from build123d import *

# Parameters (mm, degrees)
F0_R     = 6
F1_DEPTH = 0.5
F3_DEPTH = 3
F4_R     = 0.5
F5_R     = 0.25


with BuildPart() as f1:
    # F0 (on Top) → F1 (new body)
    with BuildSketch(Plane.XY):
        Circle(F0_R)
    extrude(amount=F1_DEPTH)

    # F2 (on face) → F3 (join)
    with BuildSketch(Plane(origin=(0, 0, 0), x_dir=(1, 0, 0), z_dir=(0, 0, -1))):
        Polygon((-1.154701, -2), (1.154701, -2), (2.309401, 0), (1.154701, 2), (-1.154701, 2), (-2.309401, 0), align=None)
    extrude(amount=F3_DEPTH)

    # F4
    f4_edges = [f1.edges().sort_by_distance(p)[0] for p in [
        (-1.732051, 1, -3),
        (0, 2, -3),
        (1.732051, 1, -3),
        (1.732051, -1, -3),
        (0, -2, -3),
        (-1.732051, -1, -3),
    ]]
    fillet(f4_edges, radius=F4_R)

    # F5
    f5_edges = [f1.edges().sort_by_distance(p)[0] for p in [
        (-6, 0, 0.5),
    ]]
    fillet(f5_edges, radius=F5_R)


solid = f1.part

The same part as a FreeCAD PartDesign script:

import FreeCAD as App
import Part
import Sketcher
from FreeCAD import Vector
Q = App.Units.Quantity


def edges_at(feature, points):
    """Names of the edges that pass closest to the given points."""
    edges = feature.Shape.Edges
    near = lambda p: min(range(len(edges)), key=lambda i: edges[i].distToShape(Part.Vertex(*p))[0])
    return sorted({f"Edge{near(p) + 1}" for p in points})


def add_polygon(sketch, points):
    """Adds a closed chain of lines whose ends are joined by coincident constraints."""
    first, n = sketch.GeometryCount, len(points)
    for a, b in zip(points, points[1:] + points[:1]):
        sketch.addGeometry(Part.LineSegment(App.Vector(*a, 0), App.Vector(*b, 0)), False)
    for i in range(n):
        sketch.addConstraint(Sketcher.Constraint("Coincident", first + i, 2, first + (i + 1) % n, 1))

doc = App.newDocument("Part")
body = doc.addObject("PartDesign::Body", "Body")

# Sketch on XY plane
sketch1 = body.newObject("Sketcher::SketchObject", "Sketch")
sketch1.AttachmentSupport = (doc.getObject("XY_Plane"), [""])
sketch1.MapMode = "FlatFace"
sketch1.addGeometry(Part.Circle(Vector(0, 0, 0), Vector(0, 0, 1), 6), False)
sketch1.addConstraint(Sketcher.Constraint("Coincident", 0, 3, -1, 1))
sketch1.addConstraint(Sketcher.Constraint("Diameter", 0, 12.0))
pad1 = body.newObject("PartDesign::Pad", "Pad")
pad1.Profile = sketch1
pad1.Length = 0.5

# Sketch on XY plane
sketch2 = body.newObject("Sketcher::SketchObject", "Sketch001")
sketch2.AttachmentSupport = (doc.getObject("XY_Plane"), [""])
sketch2.MapMode = "FlatFace"
add_polygon(sketch2, [(-1.154701, 2), (1.154701, 2), (2.309401, 0), (1.154701, -2), (-1.154701, -2), (-2.309401, 0)])  # lines 0-5
sketch2.addConstraint(Sketcher.Constraint("Horizontal", 0))
sketch2.addConstraint(Sketcher.Constraint("Horizontal", 3))
sketch2.addConstraint(Sketcher.Constraint("Symmetric", 0, 2, 3, 2, -1, 1))
sketch2.addConstraint(Sketcher.Constraint("Symmetric", 1, 2, 4, 2, -1, 1))
sketch2.addConstraint(Sketcher.Constraint("PointOnObject", 1, 2, -1))
sketch2.addConstraint(Sketcher.Constraint("Parallel", 2, 5))
sketch2.addConstraint(Sketcher.Constraint("Vertical", 0, 2, 2, 2))
sketch2.addConstraint(Sketcher.Constraint("Angle", 1, Q("-60.000012 deg")))
sketch2.addConstraint(Sketcher.Constraint("DistanceY", -1, 1, 0, 2, 2.0))
sketch2.addConstraint(Sketcher.Constraint("DistanceX", 0, 1, 0, 2, 2.309402))
pad2 = body.newObject("PartDesign::Pad", "Pad001")
pad2.Profile = sketch2
pad2.Length = 3
pad2.Reversed = True
doc.recompute()

fillet = body.newObject("PartDesign::Fillet", "Fillet")
fillet.Base = (pad2, edges_at(pad2, [
    (-1.732, 1, -3),
    (0, 2, -3),
    (1.732, 1, -3),
    (1.732, -1, -3),
    (0, -2, -3),
    (-1.732, -1, -3),
]))
fillet.Radius = 0.5
doc.recompute()

fillet2 = body.newObject("PartDesign::Fillet", "Fillet001")
fillet2.Base = (fillet, edges_at(fillet, [(-6, 0, 0.5)]))
fillet2.Radius = 0.25

doc.recompute()
